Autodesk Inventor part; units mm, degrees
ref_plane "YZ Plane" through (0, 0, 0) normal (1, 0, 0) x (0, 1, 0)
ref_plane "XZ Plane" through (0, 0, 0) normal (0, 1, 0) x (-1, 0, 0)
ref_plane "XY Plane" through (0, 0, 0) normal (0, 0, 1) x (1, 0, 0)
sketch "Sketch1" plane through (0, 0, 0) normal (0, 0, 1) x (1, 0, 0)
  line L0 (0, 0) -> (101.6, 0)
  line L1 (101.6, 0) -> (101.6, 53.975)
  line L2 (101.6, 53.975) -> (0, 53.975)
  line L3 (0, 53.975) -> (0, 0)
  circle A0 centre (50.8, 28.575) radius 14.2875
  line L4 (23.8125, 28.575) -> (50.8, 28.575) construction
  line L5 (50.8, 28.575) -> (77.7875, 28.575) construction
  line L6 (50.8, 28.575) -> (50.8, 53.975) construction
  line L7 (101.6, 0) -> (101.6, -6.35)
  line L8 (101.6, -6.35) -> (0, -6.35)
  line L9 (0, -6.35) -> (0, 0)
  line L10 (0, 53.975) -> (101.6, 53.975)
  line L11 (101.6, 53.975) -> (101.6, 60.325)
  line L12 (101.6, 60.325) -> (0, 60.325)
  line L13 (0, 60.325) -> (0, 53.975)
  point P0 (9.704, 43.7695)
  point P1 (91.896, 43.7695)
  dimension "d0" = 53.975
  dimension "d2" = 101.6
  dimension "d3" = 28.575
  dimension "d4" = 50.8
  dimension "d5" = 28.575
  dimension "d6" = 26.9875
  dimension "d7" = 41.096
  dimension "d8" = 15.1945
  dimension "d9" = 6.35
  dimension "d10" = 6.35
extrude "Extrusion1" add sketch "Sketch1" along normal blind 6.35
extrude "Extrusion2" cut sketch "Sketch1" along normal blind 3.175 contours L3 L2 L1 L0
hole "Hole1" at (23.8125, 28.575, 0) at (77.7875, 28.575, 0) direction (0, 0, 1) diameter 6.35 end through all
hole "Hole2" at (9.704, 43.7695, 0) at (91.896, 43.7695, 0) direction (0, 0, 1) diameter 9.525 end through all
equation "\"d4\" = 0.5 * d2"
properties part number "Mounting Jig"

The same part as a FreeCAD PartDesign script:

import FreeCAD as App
import Part
import Sketcher

V = App.Vector
Q = App.Units.Quantity

doc = App.newDocument("Part")
body = doc.addObject("PartDesign::Body", "Body")

# Sketch on XY plane
sketch1 = body.newObject("Sketcher::SketchObject", "Sketch")
sketch1.AttachmentSupport = (doc.getObject("XY_Plane"), [""])
sketch1.MapMode = "FlatFace"
sketch1.addGeometry(Part.LineSegment(V(0, -6, 0), V(102, -6, 0)), False)
sketch1.addGeometry(Part.LineSegment(V(102, -6, 0), V(102, 60, 0)), False)
sketch1.addGeometry(Part.LineSegment(V(102, 60, 0), V(0, 60, 0)), False)
sketch1.addGeometry(Part.LineSegment(V(0, 60, 0), V(0, -6, 0)), False)
sketch1.addGeometry(Part.Circle(V(51, 29, 0), V(0, 0, 1), 14), False)
sketch1.addConstraint(Sketcher.Constraint("Coincident", 0, 2, 1, 1))
sketch1.addConstraint(Sketcher.Constraint("Coincident", 1, 2, 2, 1))
sketch1.addConstraint(Sketcher.Constraint("Coincident", 2, 2, 3, 1))
sketch1.addConstraint(Sketcher.Constraint("Coincident", 3, 2, 0, 1))
sketch1.addConstraint(Sketcher.Constraint("Horizontal", 0))
sketch1.addConstraint(Sketcher.Constraint("Vertical", 1))
sketch1.addConstraint(Sketcher.Constraint("Horizontal", 2))
sketch1.addConstraint(Sketcher.Constraint("Vertical", 3))
sketch1.addConstraint(Sketcher.Constraint("PointOnObject", 2, 2, -2))
sketch1.addConstraint(Sketcher.Constraint("DistanceX", 0, 1, 0, 2, Q("4 in")))
sketch1.addConstraint(Sketcher.Constraint("Diameter", 4, Q("1.125 in")))
sketch1.addConstraint(Sketcher.Constraint("DistanceX", -1, 1, 4, 3, Q("2 in")))
sketch1.addConstraint(Sketcher.Constraint("DistanceY", 0, 2, -1, 1, Q("0.25 in")))
sketch1.addConstraint(Sketcher.Constraint("DistanceY", -1, 1, 4, 3, Q("1.125 in")))
sketch1.addConstraint(Sketcher.Constraint("DistanceY", 1, 1, 1, 2, Q("2.625 in")))
pad1 = body.newObject("PartDesign::Pad", "Pad")
pad1.Profile = sketch1
pad1.Length = Q("0.25 in")

# Sketch on XY plane
sketch2 = body.newObject("Sketcher::SketchObject", "Sketch001")
sketch2.AttachmentSupport = (doc.getObject("XY_Plane"), [""])
sketch2.MapMode = "FlatFace"
sketch2.addGeometry(Part.LineSegment(V(0, 54, 0), V(0, 0, 0)), False)
sketch2.addGeometry(Part.LineSegment(V(0, 0, 0), V(102, 0, 0)), False)
sketch2.addGeometry(Part.LineSegment(V(102, 0, 0), V(102, 54, 0)), False)
sketch2.addGeometry(Part.LineSegment(V(102, 54, 0), V(0, 54, 0)), False)
sketch2.addGeometry(Part.Circle(V(51, 29, 0), V(0, 0, 1), 14), False)
sketch2.addConstraint(Sketcher.Constraint("Coincident", 0, 2, 1, 1))
sketch2.addConstraint(Sketcher.Constraint("Coincident", 1, 2, 2, 1))
sketch2.addConstraint(Sketcher.Constraint("Coincident", 2, 2, 3, 1))
sketch2.addConstraint(Sketcher.Constraint("Coincident", 3, 2, 0, 1))
sketch2.addConstraint(Sketcher.Constraint("Vertical", 0))
sketch2.addConstraint(Sketcher.Constraint("Horizontal", 1))
sketch2.addConstraint(Sketcher.Constraint("Vertical", 2))
sketch2.addConstraint(Sketcher.Constraint("Horizontal", 3))
sketch2.addConstraint(Sketcher.Constraint("Coincident", 0, 2, -1, 1))
sketch2.addConstraint(Sketcher.Constraint("DistanceX", 1, 1, 1, 2, Q("4 in")))
sketch2.addConstraint(Sketcher.Constraint("Diameter", 4, Q("1.125 in")))
sketch2.addConstraint(Sketcher.Constraint("DistanceX", -1, 1, 4, 3, Q("2 in")))
sketch2.addConstraint(Sketcher.Constraint("DistanceY", 0, 2, 0, 1, Q("2.125 in")))
sketch2.addConstraint(Sketcher.Constraint("DistanceY", -1, 1, 4, 3, Q("1.125 in")))
pocket1 = body.newObject("PartDesign::Pocket", "Pocket")
pocket1.Profile = sketch2
pocket1.Length = Q("0.125 in")
pocket1.Reversed = True

# Sketch on XY plane
sketch3 = body.newObject("Sketcher::SketchObject", "Sketch002")
sketch3.AttachmentSupport = (doc.getObject("XY_Plane"), [""])
sketch3.MapMode = "FlatFace"
sketch3.addGeometry(Part.Circle(V(23.8, 28.6, 0), V(0, 0, 1), 3.2), False)
sketch3.addGeometry(Part.Circle(V(77.8, 28.6, 0), V(0, 0, 1), 3.2), False)
sketch3.addConstraint(Sketcher.Constraint("Equal", 0, 1))
sketch3.addConstraint(Sketcher.Constraint("Horizontal", 0, 3, 1, 3))
sketch3.addConstraint(Sketcher.Constraint("Diameter", 0, Q("0.25 in")))
sketch3.addConstraint(Sketcher.Constraint("DistanceX", -1, 1, 0, 3, Q("0.9375 in")))
sketch3.addConstraint(Sketcher.Constraint("DistanceY", -1, 1, 0, 3, Q("1.125 in")))
sketch3.addConstraint(Sketcher.Constraint("DistanceX", -1, 1, 1, 3, Q("3.0625 in")))
doc.recompute()
hole = body.newObject("PartDesign::Hole", "Hole")
hole.Profile = sketch3
hole.ThreadType = "None"
hole.Diameter = Q("0.25 in")
hole.DepthType = "ThroughAll"
hole.Reversed = True

# Sketch on XY plane
sketch4 = body.newObject("Sketcher::SketchObject", "Sketch003")
sketch4.AttachmentSupport = (doc.getObject("XY_Plane"), [""])
sketch4.MapMode = "FlatFace"
sketch4.addGeometry(Part.Circle(V(9.7, 43.8, 0), V(0, 0, 1), 4.8), False)
sketch4.addGeometry(Part.Circle(V(91.9, 43.8, 0), V(0, 0, 1), 4.8), False)
sketch4.addConstraint(Sketcher.Constraint("Equal", 0, 1))
sketch4.addConstraint(Sketcher.Constraint("Horizontal", 0, 3, 1, 3))
sketch4.addConstraint(Sketcher.Constraint("Diameter", 0, Q("0.375 in")))
sketch4.addConstraint(Sketcher.Constraint("DistanceY", -1, 1, 0, 3, Q("1.7232 in")))
sketch4.addConstraint(Sketcher.Constraint("DistanceX", 0, 3, 1, 3, Q("3.2359 in")))
sketch4.addConstraint(Sketcher.Constraint("DistanceX", -1, 1, 0, 3, Q("9.704 mm")))
doc.recompute()
hole2 = body.newObject("PartDesign::Hole", "Hole001")
hole2.Profile = sketch4
hole2.ThreadType = "None"
hole2.Diameter = Q("0.375 in")
hole2.DepthType = "ThroughAll"
hole2.Reversed = True

doc.recompute()
